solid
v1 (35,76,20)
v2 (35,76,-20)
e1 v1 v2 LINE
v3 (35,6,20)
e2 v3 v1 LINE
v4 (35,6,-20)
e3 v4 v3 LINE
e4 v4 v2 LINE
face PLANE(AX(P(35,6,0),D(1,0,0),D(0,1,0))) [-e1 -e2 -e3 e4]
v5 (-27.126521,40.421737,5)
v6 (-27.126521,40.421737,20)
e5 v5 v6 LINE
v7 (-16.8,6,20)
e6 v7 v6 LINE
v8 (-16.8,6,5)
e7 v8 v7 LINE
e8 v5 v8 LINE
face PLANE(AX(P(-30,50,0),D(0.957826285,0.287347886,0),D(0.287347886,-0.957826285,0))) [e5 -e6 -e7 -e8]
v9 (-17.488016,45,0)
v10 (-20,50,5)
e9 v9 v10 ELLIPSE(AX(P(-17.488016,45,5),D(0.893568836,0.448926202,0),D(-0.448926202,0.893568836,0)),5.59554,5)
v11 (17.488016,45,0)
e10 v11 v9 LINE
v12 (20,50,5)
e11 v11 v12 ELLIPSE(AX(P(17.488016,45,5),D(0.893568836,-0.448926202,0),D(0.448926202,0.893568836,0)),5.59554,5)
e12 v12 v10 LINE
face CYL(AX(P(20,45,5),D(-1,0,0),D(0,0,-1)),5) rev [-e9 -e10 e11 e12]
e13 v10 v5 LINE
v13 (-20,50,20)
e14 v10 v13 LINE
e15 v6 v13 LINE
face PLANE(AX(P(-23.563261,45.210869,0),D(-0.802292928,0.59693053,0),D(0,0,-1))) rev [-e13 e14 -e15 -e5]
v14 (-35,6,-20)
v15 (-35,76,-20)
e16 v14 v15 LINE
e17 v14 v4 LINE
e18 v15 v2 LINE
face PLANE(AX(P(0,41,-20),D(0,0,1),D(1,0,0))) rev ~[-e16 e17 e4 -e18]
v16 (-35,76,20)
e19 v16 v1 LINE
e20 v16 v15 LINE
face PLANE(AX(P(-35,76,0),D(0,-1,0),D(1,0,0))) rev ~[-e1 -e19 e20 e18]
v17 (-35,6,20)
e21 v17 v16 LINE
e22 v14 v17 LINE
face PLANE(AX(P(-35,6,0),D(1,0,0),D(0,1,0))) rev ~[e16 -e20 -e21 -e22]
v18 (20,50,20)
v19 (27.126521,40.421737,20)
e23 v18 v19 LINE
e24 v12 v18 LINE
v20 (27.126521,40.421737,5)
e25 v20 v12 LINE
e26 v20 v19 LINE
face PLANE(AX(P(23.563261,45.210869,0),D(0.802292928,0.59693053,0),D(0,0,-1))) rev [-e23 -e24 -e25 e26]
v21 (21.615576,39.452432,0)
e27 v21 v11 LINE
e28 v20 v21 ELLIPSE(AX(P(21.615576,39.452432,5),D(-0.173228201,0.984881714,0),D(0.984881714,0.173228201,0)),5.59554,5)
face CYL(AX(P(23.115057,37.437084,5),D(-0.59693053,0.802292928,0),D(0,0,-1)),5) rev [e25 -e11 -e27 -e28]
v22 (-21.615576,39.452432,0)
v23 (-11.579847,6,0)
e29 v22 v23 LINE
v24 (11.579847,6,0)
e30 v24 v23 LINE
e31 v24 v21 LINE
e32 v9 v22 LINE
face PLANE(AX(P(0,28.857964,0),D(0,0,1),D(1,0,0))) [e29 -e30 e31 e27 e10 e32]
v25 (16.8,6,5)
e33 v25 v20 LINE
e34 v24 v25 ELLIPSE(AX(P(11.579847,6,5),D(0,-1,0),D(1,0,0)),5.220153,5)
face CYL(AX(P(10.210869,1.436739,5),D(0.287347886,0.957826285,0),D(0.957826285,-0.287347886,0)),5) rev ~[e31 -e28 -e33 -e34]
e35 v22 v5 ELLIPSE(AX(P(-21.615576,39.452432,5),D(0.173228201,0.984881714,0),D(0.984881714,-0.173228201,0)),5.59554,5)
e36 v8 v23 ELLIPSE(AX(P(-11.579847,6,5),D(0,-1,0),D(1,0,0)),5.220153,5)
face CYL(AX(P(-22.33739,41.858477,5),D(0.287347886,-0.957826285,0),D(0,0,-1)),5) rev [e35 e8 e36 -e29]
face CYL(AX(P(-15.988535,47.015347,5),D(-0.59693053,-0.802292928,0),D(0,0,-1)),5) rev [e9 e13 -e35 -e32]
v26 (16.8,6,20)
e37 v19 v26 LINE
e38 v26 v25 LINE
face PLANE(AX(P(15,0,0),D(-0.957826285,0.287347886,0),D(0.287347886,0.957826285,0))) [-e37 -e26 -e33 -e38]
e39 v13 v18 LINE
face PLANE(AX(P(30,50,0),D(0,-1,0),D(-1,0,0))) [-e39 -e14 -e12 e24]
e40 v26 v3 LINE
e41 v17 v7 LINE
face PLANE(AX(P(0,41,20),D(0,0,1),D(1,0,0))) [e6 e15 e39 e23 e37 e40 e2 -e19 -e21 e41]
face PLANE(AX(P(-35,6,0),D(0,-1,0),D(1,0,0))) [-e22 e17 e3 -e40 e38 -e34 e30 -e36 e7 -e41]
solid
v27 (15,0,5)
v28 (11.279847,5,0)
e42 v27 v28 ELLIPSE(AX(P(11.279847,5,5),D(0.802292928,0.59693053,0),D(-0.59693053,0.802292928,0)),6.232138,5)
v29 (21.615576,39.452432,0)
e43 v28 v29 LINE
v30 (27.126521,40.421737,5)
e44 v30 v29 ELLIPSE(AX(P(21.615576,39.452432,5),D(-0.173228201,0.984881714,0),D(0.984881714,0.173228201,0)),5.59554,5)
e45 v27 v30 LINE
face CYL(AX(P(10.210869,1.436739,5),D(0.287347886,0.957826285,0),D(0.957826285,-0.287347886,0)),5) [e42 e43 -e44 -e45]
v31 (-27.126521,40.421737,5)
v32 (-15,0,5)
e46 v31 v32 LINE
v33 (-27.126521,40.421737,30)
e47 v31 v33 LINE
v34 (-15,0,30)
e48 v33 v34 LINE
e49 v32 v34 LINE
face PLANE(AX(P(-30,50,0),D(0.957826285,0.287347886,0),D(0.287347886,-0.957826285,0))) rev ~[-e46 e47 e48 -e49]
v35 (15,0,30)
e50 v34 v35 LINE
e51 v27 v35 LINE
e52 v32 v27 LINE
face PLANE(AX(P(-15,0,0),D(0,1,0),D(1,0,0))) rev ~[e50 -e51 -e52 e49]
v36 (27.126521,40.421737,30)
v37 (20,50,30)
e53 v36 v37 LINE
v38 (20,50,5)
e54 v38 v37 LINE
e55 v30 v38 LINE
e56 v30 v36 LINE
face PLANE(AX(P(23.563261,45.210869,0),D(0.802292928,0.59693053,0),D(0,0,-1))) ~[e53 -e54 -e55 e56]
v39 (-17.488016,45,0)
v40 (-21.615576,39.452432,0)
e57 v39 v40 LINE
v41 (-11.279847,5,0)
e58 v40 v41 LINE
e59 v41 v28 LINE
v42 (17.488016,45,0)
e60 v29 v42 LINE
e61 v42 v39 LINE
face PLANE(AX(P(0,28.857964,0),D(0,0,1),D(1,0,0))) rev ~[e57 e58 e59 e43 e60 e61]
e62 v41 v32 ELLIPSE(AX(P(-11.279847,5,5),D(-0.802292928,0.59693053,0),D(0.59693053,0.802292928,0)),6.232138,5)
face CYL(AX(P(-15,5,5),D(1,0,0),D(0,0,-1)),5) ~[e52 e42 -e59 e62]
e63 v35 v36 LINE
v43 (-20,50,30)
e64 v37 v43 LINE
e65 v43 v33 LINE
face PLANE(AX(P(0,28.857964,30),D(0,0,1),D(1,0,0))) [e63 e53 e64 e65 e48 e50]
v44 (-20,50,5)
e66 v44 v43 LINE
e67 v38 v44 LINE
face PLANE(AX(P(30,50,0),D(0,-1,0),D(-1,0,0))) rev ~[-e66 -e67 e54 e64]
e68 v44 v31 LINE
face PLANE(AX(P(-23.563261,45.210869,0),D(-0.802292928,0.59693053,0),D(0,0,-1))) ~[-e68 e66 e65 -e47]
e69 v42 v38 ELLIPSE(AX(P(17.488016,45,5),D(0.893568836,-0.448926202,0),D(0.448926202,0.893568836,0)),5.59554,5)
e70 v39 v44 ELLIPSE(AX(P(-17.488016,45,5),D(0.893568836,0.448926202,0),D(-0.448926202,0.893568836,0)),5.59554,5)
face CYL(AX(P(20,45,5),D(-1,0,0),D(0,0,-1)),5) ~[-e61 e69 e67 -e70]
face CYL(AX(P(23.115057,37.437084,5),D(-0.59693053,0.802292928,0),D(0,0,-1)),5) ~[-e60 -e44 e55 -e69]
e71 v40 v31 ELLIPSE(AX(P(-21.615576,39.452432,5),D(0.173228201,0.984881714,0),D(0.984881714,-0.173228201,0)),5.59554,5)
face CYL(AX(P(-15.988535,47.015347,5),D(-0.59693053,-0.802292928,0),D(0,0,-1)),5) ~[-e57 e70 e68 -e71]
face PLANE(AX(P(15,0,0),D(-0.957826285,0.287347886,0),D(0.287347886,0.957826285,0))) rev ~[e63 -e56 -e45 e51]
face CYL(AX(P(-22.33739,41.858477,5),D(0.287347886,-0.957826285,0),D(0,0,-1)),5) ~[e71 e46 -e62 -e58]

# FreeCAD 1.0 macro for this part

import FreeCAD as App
import Part
import Sketcher


def edges_at(feature, points):
    """Names of the edges that pass closest to the given points."""
    edges = feature.Shape.Edges
    near = lambda p: min(range(len(edges)), key=lambda i: edges[i].distToShape(Part.Vertex(*p))[0])
    return sorted({f"Edge{near(p) + 1}" for p in points})

doc = App.newDocument("Part")
body = doc.addObject("PartDesign::Body", "Body")

sketch1 = body.newObject("Sketcher::SketchObject", "Sketch")
sketch1.AttachmentSupport = (doc.getObject("XY_Plane"), [""])
sketch1.MapMode = "FlatFace"
sketch1.addGeometry(Part.LineSegment(App.Vector(-15, 0, 0), App.Vector(15, 0, 0)), False)
sketch1.addGeometry(Part.LineSegment(App.Vector(15, 0, 0), App.Vector(30, 50, 0)), False)
sketch1.addGeometry(Part.LineSegment(App.Vector(30, 50, 0), App.Vector(-30, 50, 0)), False)
sketch1.addGeometry(Part.LineSegment(App.Vector(-30, 50, 0), App.Vector(-15, 0, 0)), False)
sketch1.addConstraint(Sketcher.Constraint("Coincident", 0, 2, 1, 1))
sketch1.addConstraint(Sketcher.Constraint("Coincident", 1, 2, 2, 1))
sketch1.addConstraint(Sketcher.Constraint("Coincident", 2, 2, 3, 1))
sketch1.addConstraint(Sketcher.Constraint("Coincident", 3, 2, 0, 1))
sketch1.addConstraint(Sketcher.Constraint("Horizontal", 0))
sketch1.addConstraint(Sketcher.Constraint("Horizontal", 2))
sketch1.addConstraint(Sketcher.Constraint("Symmetric", 0, 2, 3, 2, -1, 1))
sketch1.addConstraint(Sketcher.Constraint("Equal", 1, 3))
sketch1.addConstraint(Sketcher.Constraint("DistanceX", 0, 1, 0, 2, 30.0))
sketch1.addConstraint(Sketcher.Constraint("DistanceX", 2, 2, 2, 1, 60.0))
sketch1.addConstraint(Sketcher.Constraint("DistanceY", -1, 1, 1, 2, 50.0))
pad1 = body.newObject("PartDesign::Pad", "Pad")
pad1.Profile = sketch1
pad1.Length = 30
doc.recompute()

chamfer = body.newObject("PartDesign::Chamfer", "Chamfer")
chamfer.Base = (pad1, edges_at(pad1, [(-30, 50, 15), (30, 50, 15)]))
chamfer.Size = 10
doc.recompute()

fillet = body.newObject("PartDesign::Fillet", "Fillet")
fillet.Base = (chamfer, edges_at(chamfer, [
    (21.063, 20.211, 0),
    (23.563, 45.211, 0),
    (0, 0, 0),
    (0, 50, 0),
    (-21.063, 20.211, 0),
    (-23.563, 45.211, 0),
]))
fillet.Radius = 5
body2 = doc.addObject("PartDesign::Body", "Body001")

sketch2 = body2.newObject("Sketcher::SketchObject", "Sketch001")
sketch2.AttachmentSupport = (doc.getObject("XY_Plane001"), [""])
sketch2.MapMode = "FlatFace"
sketch2.addGeometry(Part.LineSegment(App.Vector(-35, 76, 0), App.Vector(-35, 6, 0)), False)
sketch2.addGeometry(Part.LineSegment(App.Vector(-35, 6, 0), App.Vector(35, 6, 0)), False)
sketch2.addGeometry(Part.LineSegment(App.Vector(35, 6, 0), App.Vector(35, 76, 0)), False)
sketch2.addGeometry(Part.LineSegment(App.Vector(35, 76, 0), App.Vector(-35, 76, 0)), False)
sketch2.addConstraint(Sketcher.Constraint("Coincident", 0, 2, 1, 1))
sketch2.addConstraint(Sketcher.Constraint("Coincident", 1, 2, 2, 1))
sketch2.addConstraint(Sketcher.Constraint("Coincident", 2, 2, 3, 1))
sketch2.addConstraint(Sketcher.Constraint("Coincident", 3, 2, 0, 1))
sketch2.addConstraint(Sketcher.Constraint("Vertical", 0))
sketch2.addConstraint(Sketcher.Constraint("Horizontal", 1))
sketch2.addConstraint(Sketcher.Constraint("Vertical", 2))
sketch2.addConstraint(Sketcher.Constraint("Horizontal", 3))
sketch2.addConstraint(Sketcher.Constraint("Equal", 3, 0))
sketch2.addConstraint(Sketcher.Constraint("DistanceX", 1, 1, 1, 2, 70.0))
sketch2.addConstraint(Sketcher.Constraint("DistanceX", 0, 2, -1, 1, 35.0))
sketch2.addConstraint(Sketcher.Constraint("DistanceY", -1, 1, 0, 2, 6.0))
pad2 = body2.newObject("PartDesign::Pad", "Pad001")
pad2.Profile = sketch2
pad2.Type = "TwoLengths"
pad2.Length = 20
pad2.Length2 = 20
doc.recompute()

body3 = doc.addObject("PartDesign::Body", "Body002")
body3.BaseFeature = body
boolean = body2.newObject("PartDesign::Boolean", "Boolean")
boolean.Type = "Cut"
boolean.addObjects([body3])
doc.recompute()

doc.recompute()
